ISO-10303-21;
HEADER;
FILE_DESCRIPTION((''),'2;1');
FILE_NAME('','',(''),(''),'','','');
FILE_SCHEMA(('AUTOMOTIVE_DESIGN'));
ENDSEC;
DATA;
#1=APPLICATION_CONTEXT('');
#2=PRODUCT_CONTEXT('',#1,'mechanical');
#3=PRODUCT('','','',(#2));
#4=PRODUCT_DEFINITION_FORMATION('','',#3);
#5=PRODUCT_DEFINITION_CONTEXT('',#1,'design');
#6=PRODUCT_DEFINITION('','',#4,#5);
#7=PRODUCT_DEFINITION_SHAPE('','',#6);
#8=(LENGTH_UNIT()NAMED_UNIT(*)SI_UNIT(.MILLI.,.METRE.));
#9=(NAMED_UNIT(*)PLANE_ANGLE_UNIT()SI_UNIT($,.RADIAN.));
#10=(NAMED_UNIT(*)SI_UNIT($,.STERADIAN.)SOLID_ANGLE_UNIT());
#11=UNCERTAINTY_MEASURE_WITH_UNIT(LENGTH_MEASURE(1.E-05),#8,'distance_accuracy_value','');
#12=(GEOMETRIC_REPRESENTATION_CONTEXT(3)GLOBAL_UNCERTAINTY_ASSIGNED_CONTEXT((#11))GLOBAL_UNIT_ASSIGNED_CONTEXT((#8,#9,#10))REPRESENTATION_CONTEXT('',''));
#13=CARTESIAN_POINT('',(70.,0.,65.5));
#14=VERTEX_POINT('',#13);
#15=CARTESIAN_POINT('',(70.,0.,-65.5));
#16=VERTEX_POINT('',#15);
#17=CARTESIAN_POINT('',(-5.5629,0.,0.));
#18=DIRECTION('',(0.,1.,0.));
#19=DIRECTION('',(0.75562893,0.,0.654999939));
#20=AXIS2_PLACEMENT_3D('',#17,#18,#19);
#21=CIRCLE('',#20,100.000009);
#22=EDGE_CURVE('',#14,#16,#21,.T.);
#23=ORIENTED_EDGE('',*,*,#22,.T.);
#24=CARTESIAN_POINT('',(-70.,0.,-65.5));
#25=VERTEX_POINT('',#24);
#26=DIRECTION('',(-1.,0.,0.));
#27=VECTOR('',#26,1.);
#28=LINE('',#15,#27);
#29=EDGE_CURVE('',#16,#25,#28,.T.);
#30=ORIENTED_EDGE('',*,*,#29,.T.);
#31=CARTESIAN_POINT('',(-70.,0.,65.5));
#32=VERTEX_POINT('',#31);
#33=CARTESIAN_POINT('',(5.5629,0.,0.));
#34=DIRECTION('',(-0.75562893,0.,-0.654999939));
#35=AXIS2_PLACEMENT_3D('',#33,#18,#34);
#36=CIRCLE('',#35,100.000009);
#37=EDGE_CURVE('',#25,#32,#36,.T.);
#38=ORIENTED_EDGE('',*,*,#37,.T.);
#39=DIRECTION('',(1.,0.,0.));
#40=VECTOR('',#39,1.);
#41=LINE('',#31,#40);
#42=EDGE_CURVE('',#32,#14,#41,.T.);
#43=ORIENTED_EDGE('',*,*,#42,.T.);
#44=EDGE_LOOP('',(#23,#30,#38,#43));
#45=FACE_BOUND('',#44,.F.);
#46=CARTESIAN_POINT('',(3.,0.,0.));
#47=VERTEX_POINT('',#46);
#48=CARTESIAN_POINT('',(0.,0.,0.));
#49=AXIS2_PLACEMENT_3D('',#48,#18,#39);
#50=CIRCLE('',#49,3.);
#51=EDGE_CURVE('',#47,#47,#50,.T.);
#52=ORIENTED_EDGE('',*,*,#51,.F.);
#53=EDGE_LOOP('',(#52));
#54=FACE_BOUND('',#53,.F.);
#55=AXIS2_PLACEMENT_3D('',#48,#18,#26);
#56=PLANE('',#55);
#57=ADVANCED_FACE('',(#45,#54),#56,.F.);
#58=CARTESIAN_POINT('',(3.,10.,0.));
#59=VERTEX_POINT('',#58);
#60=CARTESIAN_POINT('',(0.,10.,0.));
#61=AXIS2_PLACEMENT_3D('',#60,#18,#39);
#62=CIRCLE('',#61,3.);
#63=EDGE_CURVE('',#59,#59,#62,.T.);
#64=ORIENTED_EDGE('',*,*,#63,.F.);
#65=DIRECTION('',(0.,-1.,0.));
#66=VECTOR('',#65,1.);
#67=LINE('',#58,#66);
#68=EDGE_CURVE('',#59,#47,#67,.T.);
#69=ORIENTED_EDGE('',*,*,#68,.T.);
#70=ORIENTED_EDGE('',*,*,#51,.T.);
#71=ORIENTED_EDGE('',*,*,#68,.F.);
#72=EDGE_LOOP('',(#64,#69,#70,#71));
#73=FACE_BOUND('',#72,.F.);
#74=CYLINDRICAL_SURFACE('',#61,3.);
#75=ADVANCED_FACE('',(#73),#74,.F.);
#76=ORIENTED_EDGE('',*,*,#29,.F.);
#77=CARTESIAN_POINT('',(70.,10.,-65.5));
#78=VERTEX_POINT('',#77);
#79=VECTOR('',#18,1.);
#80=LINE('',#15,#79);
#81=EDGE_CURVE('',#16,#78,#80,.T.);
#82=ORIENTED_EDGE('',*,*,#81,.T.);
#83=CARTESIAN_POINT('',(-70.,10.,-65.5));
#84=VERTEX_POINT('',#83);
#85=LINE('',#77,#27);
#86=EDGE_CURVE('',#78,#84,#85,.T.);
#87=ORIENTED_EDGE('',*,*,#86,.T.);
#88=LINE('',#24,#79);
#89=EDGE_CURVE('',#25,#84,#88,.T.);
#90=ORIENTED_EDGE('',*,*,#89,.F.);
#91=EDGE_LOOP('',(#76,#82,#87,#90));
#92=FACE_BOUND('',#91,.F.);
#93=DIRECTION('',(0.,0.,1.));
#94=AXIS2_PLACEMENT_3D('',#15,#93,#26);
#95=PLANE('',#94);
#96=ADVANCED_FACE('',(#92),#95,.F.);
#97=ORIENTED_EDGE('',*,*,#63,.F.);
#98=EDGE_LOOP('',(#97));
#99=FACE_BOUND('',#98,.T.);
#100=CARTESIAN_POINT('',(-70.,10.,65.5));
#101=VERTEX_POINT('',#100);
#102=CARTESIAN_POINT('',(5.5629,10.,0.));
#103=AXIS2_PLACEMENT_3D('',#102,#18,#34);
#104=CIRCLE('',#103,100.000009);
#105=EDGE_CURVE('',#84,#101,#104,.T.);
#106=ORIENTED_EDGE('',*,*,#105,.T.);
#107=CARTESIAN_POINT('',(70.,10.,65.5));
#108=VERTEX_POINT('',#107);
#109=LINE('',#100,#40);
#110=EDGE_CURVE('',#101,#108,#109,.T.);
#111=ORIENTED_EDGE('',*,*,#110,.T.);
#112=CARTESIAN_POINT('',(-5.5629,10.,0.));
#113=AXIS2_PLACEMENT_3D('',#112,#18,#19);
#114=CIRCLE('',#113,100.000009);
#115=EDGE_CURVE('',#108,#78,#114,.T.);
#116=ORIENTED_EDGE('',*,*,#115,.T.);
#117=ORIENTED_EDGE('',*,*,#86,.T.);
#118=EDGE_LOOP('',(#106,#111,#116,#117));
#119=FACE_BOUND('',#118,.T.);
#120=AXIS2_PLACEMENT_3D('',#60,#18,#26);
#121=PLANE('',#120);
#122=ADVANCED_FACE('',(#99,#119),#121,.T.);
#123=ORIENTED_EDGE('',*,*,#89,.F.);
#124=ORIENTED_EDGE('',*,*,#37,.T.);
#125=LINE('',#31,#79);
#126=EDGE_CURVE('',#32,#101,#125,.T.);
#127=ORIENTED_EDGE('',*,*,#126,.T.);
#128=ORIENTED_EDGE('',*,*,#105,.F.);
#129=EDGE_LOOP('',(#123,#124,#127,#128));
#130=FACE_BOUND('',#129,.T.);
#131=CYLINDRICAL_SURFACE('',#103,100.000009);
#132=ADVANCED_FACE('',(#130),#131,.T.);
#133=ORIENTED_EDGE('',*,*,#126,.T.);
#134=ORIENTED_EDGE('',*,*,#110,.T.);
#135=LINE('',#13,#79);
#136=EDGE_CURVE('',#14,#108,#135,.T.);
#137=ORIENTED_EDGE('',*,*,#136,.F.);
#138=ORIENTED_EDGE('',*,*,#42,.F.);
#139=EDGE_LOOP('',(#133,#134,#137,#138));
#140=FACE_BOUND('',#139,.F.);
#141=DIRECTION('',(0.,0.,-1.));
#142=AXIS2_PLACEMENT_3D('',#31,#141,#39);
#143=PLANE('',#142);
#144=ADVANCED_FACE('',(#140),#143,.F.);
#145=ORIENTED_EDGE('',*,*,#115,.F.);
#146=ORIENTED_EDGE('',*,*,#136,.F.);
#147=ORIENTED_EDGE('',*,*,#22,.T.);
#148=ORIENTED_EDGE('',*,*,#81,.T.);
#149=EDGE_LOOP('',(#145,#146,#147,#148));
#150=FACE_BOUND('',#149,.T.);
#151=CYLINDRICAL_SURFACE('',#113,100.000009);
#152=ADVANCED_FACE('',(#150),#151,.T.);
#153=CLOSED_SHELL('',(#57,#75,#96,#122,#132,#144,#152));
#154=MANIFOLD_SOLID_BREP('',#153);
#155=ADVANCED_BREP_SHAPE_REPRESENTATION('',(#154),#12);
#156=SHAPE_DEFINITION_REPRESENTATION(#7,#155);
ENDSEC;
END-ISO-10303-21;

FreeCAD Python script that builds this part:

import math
import FreeCAD as App
import Part
import Sketcher
from FreeCAD import Vector
Q = App.Units.Quantity


def add_polygon(sketch, points):
    """Adds a closed chain of lines whose ends are joined by coincident constraints."""
    first, n = sketch.GeometryCount, len(points)
    for a, b in zip(points, points[1:] + points[:1]):
        sketch.addGeometry(Part.LineSegment(App.Vector(*a, 0), App.Vector(*b, 0)), False)
    for i in range(n):
        sketch.addConstraint(Sketcher.Constraint("Coincident", first + i, 2, first + (i + 1) % n, 1))

doc = App.newDocument("Part")
params = doc.addObject("Spreadsheet::Sheet", "Params")
for row, (alias, value) in enumerate([
    ("sketch1_diameter", "15 mm"),
    ("sketch1_width", "140 mm"),
    ("sketch1_height", "131 mm"),
    ("pad1_length", "10 mm"),
    ("sketch2_diameter", "6 mm"),
    ("sketch2_diameter2", "15 mm"),
    ("pad2_length", "10 mm"),
    ("sketch3_radius", "100 mm"),
    ("sketch3_height", "131 mm"),
    ("pad3_length", "10 mm"),
], start=1):
    params.set(f"A{row}", alias)
    params.set(f"B{row}", "=" + value)
    params.setAlias(f"B{row}", alias)

body = doc.addObject("PartDesign::Body", "Body")

sketch1 = body.newObject("Sketcher::SketchObject", "Sketch")
sketch1.AttachmentSupport = (doc.getObject("XZ_Plane"), [""])
sketch1.MapMode = "FlatFace"
add_polygon(sketch1, [(-70, -66), (-70, 66), (70, 66), (70, -66)])
sketch1.addGeometry(Part.Circle(Vector(0, 0, 0), Vector(0, 0, 1), 8), False)
sketch1.addConstraint([
    Sketcher.Constraint("Vertical", 0),
    Sketcher.Constraint("Horizontal", 1),
    Sketcher.Constraint("Vertical", 2),
    Sketcher.Constraint("Horizontal", 3),
    Sketcher.Constraint("Coincident", 4, 3, -1, 1),
    Sketcher.Constraint("Symmetric", 0, 2, 2, 2, -1, 1),
    Sketcher.Constraint("Diameter", 4, Q("15 mm")),
    Sketcher.Constraint("DistanceX", 1, 1, 1, 2, Q("140 mm")),
    Sketcher.Constraint("DistanceY", 0, 1, 0, 2, Q("131 mm")),
])
sketch1.setExpression("Constraints[10]", "Params.sketch1_diameter")
sketch1.setExpression("Constraints[11]", "Params.sketch1_width")
sketch1.setExpression("Constraints[12]", "Params.sketch1_height")
pad1 = body.newObject("PartDesign::Pad", "Pad")
pad1.Profile = sketch1
pad1.setExpression("Length", "Params.pad1_length")
pad1.Reversed = True

sketch2 = body.newObject("Sketcher::SketchObject", "Sketch001")
sketch2.AttachmentSupport = (doc.getObject("XZ_Plane"), [""])
sketch2.MapMode = "FlatFace"
sketch2.AttachmentOffset = App.Placement(Vector(0, 0, -10), App.Rotation())
sketch2.addGeometry([
    Part.Circle(Vector(0, 0, 0), Vector(0, 0, 1), 7.5),
    Part.Circle(Vector(0, 0, 0), Vector(0, 0, 1), 3),
], False)
sketch2.addConstraint([
    Sketcher.Constraint("Coincident", 0, 3, -1, 1),
    Sketcher.Constraint("Coincident", 1, 3, -1, 1),
    Sketcher.Constraint("Diameter", 1, Q("6 mm")),
    Sketcher.Constraint("Diameter", 0, Q("15 mm")),
])
sketch2.setExpression("Constraints[2]", "Params.sketch2_diameter")
sketch2.setExpression("Constraints[3]", "Params.sketch2_diameter2")
pad2 = body.newObject("PartDesign::Pad", "Pad001")
pad2.Profile = sketch2
pad2.setExpression("Length", "Params.pad2_length")

sketch3 = body.newObject("Sketcher::SketchObject", "Sketch002")
sketch3.AttachmentSupport = (doc.getObject("XZ_Plane"), [""])
sketch3.MapMode = "FlatFace"
sketch3.AttachmentOffset = App.Placement(Vector(0, 0, -10), App.Rotation())
sketch3.addGeometry([
    Part.LineSegment(Vector(70, -66, 0), Vector(70, 66, 0)),
    Part.ArcOfCircle(Part.Circle(Vector(-6, 0, 0), Vector(0, 0, 1), 100), math.radians(-41), math.radians(41)),
    Part.LineSegment(Vector(-70, 66, 0), Vector(-70, -66, 0)),
    Part.ArcOfCircle(Part.Circle(Vector(6, 0, 0), Vector(0, 0, 1), 100), math.radians(139), math.radians(221)),
], False)
sketch3.addConstraint([
    Sketcher.Constraint("Coincident", 0, 1, 1, 1),
    Sketcher.Constraint("Coincident", 1, 2, 0, 2),
    Sketcher.Constraint("Coincident", 2, 1, 3, 1),
    Sketcher.Constraint("Coincident", 3, 2, 2, 2),
    Sketcher.Constraint("Vertical", 0),
    Sketcher.Constraint("Vertical", 2),
    Sketcher.Constraint("Equal", 1, 3),
    Sketcher.Constraint("Symmetric", 1, 3, 3, 3, -1, 1),
    Sketcher.Constraint("Symmetric", 1, 2, 2, 1, -2),
    Sketcher.Constraint("Radius", 1, Q("100 mm")),
    Sketcher.Constraint("DistanceY", 0, 1, 0, 2, Q("131 mm")),
    Sketcher.Constraint("DistanceX", -1, 1, 0, 1, Q("70 mm")),
])
sketch3.setExpression("Constraints[9]", "Params.sketch3_radius")
sketch3.setExpression("Constraints[10]", "Params.sketch3_height")
pad3 = body.newObject("PartDesign::Pad", "Pad002")
pad3.Profile = sketch3
pad3.setExpression("Length", "Params.pad3_length")

doc.recompute()
